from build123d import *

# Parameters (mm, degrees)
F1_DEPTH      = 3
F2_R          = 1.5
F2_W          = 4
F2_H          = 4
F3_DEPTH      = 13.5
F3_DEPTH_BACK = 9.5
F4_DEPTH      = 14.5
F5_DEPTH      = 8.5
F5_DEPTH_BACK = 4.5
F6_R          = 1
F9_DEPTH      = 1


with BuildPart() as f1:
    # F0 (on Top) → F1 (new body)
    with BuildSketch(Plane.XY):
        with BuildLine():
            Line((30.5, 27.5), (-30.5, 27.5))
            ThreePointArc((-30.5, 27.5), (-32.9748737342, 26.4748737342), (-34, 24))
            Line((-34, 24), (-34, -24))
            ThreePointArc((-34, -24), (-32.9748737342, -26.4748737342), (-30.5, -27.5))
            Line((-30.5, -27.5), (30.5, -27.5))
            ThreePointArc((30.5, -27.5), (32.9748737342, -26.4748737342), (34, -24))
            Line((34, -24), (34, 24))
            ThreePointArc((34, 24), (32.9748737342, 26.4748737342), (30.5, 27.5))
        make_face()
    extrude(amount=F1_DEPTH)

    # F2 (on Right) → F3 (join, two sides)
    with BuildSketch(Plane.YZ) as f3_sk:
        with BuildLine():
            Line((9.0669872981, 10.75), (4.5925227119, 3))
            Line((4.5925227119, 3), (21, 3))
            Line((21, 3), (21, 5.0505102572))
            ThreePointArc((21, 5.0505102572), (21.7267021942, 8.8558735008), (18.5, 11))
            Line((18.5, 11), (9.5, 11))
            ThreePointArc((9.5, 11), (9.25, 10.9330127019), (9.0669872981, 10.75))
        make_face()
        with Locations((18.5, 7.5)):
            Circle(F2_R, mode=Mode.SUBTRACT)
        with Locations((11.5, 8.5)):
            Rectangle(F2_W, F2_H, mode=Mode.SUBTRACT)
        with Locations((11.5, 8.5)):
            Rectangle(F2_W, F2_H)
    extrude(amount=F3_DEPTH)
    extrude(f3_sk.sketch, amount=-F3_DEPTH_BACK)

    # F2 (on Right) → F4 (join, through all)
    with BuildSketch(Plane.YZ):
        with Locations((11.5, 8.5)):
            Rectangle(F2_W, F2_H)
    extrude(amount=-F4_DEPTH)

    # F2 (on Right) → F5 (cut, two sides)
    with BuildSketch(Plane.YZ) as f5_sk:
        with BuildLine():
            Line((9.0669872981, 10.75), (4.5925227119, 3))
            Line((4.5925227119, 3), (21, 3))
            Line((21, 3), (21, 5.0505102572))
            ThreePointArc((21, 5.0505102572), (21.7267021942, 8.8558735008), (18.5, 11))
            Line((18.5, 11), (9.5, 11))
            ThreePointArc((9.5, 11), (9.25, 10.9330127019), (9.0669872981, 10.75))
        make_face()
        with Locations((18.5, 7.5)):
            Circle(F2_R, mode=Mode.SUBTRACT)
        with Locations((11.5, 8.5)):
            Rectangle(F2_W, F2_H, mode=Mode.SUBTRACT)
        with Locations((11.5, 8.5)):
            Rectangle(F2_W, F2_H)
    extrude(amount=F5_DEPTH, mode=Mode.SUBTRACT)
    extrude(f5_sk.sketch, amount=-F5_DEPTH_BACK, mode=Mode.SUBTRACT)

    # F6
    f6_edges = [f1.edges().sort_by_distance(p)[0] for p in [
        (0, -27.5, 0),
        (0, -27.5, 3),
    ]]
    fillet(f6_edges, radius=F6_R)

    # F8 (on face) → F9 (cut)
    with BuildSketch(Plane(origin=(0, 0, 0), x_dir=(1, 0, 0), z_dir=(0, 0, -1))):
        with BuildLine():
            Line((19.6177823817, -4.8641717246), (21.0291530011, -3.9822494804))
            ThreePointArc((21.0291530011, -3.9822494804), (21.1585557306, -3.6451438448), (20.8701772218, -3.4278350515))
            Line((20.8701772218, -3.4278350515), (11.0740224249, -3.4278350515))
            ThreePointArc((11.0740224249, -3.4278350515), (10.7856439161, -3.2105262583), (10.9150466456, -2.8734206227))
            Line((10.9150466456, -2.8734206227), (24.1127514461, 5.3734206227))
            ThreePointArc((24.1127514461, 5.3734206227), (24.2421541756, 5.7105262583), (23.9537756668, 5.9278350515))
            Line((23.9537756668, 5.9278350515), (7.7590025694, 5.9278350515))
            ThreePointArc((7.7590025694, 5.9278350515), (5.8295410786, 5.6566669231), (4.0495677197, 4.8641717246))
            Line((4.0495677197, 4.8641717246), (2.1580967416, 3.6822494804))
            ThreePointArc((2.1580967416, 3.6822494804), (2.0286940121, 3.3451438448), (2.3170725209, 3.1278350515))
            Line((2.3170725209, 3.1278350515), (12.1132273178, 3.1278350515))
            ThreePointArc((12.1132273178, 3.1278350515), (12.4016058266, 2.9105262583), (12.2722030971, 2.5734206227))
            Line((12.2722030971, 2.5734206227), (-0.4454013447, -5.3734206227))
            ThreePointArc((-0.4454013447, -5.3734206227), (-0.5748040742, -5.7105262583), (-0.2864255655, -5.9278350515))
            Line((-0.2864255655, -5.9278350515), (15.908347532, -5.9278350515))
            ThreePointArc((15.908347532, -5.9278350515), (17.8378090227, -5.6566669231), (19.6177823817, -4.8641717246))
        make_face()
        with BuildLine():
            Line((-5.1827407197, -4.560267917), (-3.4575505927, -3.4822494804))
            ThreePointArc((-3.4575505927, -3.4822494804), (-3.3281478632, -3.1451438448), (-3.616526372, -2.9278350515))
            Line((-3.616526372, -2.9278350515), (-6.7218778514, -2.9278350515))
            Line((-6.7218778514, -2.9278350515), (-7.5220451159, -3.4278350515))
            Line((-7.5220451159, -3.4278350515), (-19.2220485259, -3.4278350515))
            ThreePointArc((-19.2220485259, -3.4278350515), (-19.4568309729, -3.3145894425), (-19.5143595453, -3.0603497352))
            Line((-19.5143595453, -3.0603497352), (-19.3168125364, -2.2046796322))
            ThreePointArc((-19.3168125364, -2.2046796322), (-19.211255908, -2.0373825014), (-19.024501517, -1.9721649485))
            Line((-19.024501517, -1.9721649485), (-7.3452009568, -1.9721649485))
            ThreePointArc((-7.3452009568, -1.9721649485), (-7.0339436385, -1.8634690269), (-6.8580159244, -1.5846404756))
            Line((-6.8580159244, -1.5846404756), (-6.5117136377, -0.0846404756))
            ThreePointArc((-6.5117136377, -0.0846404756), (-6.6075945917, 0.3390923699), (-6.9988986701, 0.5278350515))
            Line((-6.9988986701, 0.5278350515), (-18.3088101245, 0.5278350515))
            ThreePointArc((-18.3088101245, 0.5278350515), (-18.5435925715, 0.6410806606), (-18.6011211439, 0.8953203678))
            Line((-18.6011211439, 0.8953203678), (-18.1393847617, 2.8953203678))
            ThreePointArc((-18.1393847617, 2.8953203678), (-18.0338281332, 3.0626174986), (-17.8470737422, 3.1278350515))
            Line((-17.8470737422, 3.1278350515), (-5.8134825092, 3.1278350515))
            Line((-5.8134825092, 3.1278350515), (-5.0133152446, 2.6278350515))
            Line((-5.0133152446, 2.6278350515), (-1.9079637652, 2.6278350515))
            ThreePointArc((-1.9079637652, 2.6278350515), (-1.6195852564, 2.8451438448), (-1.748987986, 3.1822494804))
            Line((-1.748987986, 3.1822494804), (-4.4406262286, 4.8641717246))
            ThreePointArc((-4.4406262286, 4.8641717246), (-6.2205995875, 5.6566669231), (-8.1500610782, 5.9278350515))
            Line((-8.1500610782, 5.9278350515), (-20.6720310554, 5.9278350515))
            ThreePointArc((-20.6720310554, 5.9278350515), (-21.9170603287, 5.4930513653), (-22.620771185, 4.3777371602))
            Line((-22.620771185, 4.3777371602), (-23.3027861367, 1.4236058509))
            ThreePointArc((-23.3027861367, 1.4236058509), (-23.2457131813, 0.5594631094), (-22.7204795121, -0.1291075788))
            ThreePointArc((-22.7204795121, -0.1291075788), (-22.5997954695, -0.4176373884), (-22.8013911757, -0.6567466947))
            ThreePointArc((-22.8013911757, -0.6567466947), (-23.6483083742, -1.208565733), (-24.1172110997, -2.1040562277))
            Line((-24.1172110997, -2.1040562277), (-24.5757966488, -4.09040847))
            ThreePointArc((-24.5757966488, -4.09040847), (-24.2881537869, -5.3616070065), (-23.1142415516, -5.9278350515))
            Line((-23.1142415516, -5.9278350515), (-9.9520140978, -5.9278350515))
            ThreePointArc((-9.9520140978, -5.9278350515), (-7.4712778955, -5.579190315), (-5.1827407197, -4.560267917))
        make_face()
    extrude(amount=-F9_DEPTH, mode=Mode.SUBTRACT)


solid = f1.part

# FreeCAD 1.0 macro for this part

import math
import FreeCAD as App
import Part
import Sketcher

V = App.Vector
Q = App.Units.Quantity


def edges_at(feature, points):
    """Names of the edges that pass closest to the given points."""
    edges = feature.Shape.Edges
    near = lambda p: min(range(len(edges)), key=lambda i: edges[i].distToShape(Part.Vertex(*p))[0])
    return sorted({f"Edge{near(p) + 1}" for p in points})


def add_polygon(sketch, points):
    """Adds a closed chain of lines whose ends are joined by coincident constraints."""
    first, n = sketch.GeometryCount, len(points)
    for a, b in zip(points, points[1:] + points[:1]):
        sketch.addGeometry(Part.LineSegment(App.Vector(*a, 0), App.Vector(*b, 0)), False)
    for i in range(n):
        sketch.addConstraint(Sketcher.Constraint("Coincident", first + i, 2, first + (i + 1) % n, 1))

doc = App.newDocument("Part")
body = doc.addObject("PartDesign::Body", "Body")

# Sketch on XY plane
sketch1 = body.newObject("Sketcher::SketchObject", "Sketch")
sketch1.AttachmentSupport = (doc.getObject("XY_Plane"), [""])
sketch1.MapMode = "FlatFace"
sketch1.addGeometry(Part.LineSegment(V(30.5, 27.5, 0), V(-30.5, 27.5, 0)), False)
sketch1.addGeometry(Part.ArcOfCircle(Part.Circle(V(-30.5, 24, 0), V(0, 0, 1), 3.5), math.radians(90), math.radians(180)), False)
sketch1.addGeometry(Part.LineSegment(V(-34, 24, 0), V(-34, -24, 0)), False)
sketch1.addGeometry(Part.ArcOfCircle(Part.Circle(V(-30.5, -24, 0), V(0, 0, 1), 3.5), math.radians(180), math.radians(270)), False)
sketch1.addGeometry(Part.LineSegment(V(-30.5, -27.5, 0), V(30.5, -27.5, 0)), False)
sketch1.addGeometry(Part.ArcOfCircle(Part.Circle(V(30.5, -24, 0), V(0, 0, 1), 3.5), math.radians(-90), math.radians(0)), False)
sketch1.addGeometry(Part.LineSegment(V(34, -24, 0), V(34, 24, 0)), False)
sketch1.addGeometry(Part.ArcOfCircle(Part.Circle(V(30.5, 24, 0), V(0, 0, 1), 3.5), math.radians(0), math.radians(90)), False)
sketch1.addConstraint(Sketcher.Constraint("Tangent", 0, 2, 1, 1))
sketch1.addConstraint(Sketcher.Constraint("Tangent", 1, 2, 2, 1))
sketch1.addConstraint(Sketcher.Constraint("Tangent", 2, 2, 3, 1))
sketch1.addConstraint(Sketcher.Constraint("Tangent", 3, 2, 4, 1))
sketch1.addConstraint(Sketcher.Constraint("Tangent", 4, 2, 5, 1))
sketch1.addConstraint(Sketcher.Constraint("Tangent", 5, 2, 6, 1))
sketch1.addConstraint(Sketcher.Constraint("Tangent", 6, 2, 7, 1))
sketch1.addConstraint(Sketcher.Constraint("Tangent", 7, 2, 0, 1))
sketch1.addConstraint(Sketcher.Constraint("Horizontal", 0))
sketch1.addConstraint(Sketcher.Constraint("Vertical", 2))
sketch1.addConstraint(Sketcher.Constraint("Horizontal", 4))
sketch1.addConstraint(Sketcher.Constraint("Vertical", 6))
sketch1.addConstraint(Sketcher.Constraint("Equal", 1, 3))
sketch1.addConstraint(Sketcher.Constraint("Equal", 3, 5))
sketch1.addConstraint(Sketcher.Constraint("Equal", 5, 7))
sketch1.addConstraint(Sketcher.Constraint("Symmetric", 1, 3, 5, 3, -1, 1))
sketch1.addConstraint(Sketcher.Constraint("Radius", 1, 3.5))
sketch1.addConstraint(Sketcher.Constraint("DistanceX", 0, 2, 0, 1, 61.0))
sketch1.addConstraint(Sketcher.Constraint("DistanceY", 2, 2, 2, 1, 48.0))
pad1 = body.newObject("PartDesign::Pad", "Pad")
pad1.Profile = sketch1
pad1.Length = 3

# Sketch on YZ plane
sketch2 = body.newObject("Sketcher::SketchObject", "Sketch001")
sketch2.AttachmentSupport = (doc.getObject("YZ_Plane"), [""])
sketch2.MapMode = "FlatFace"
sketch2.addGeometry(Part.LineSegment(V(9.066987, 10.75, 0), V(4.592523, 3, 0)), False)
sketch2.addGeometry(Part.LineSegment(V(4.592523, 3, 0), V(21, 3, 0)), False)
sketch2.addGeometry(Part.LineSegment(V(21, 3, 0), V(21, 5.05051, 0)), False)
sketch2.addGeometry(Part.ArcOfCircle(Part.Circle(V(18.5, 7.5, 0), V(0, 0, 1), 3.5), math.radians(-44.415309), math.radians(90)), False)
sketch2.addGeometry(Part.LineSegment(V(18.5, 11, 0), V(9.5, 11, 0)), False)
sketch2.addGeometry(Part.ArcOfCircle(Part.Circle(V(9.5, 10.5, 0), V(0, 0, 1), 0.5), math.radians(90), math.radians(150)), False)
sketch2.addGeometry(Part.Circle(V(18.5, 7.5, 0), V(0, 0, 1), 1.5), False)
sketch2.addConstraint(Sketcher.Constraint("Coincident", 0, 2, 1, 1))
sketch2.addConstraint(Sketcher.Constraint("Coincident", 1, 2, 2, 1))
sketch2.addConstraint(Sketcher.Constraint("Coincident", 2, 2, 3, 1))
sketch2.addConstraint(Sketcher.Constraint("Tangent", 3, 2, 4, 1))
sketch2.addConstraint(Sketcher.Constraint("Tangent", 4, 2, 5, 1))
sketch2.addConstraint(Sketcher.Constraint("Tangent", 5, 2, 0, 1))
sketch2.addConstraint(Sketcher.Constraint("Horizontal", 1))
sketch2.addConstraint(Sketcher.Constraint("Vertical", 2))
sketch2.addConstraint(Sketcher.Constraint("Horizontal", 4))
sketch2.addConstraint(Sketcher.Constraint("Coincident", 6, 3, 3, 3))
sketch2.addConstraint(Sketcher.Constraint("Diameter", 6, 3.0))
sketch2.addConstraint(Sketcher.Constraint("Radius", 3, 3.5))
sketch2.addConstraint(Sketcher.Constraint("Radius", 5, 0.5))
sketch2.addConstraint(Sketcher.Constraint("DistanceX", 4, 2, 4, 1, 9.0))
sketch2.addConstraint(Sketcher.Constraint("Angle", 0, Q("-120 deg")))
sketch2.addConstraint(Sketcher.Constraint("DistanceY", -1, 1, 0, 2, 3.0))
sketch2.addConstraint(Sketcher.Constraint("DistanceX", -1, 1, 1, 2, 21.0))
sketch2.addConstraint(Sketcher.Constraint("DistanceY", -1, 1, 3, 2, 11.0))
sketch2.addConstraint(Sketcher.Constraint("DistanceX", -1, 1, 3, 3, 18.5))
pad2 = body.newObject("PartDesign::Pad", "Pad001")
pad2.Profile = sketch2
pad2.Type = "TwoLengths"
pad2.Length = 13.5
pad2.Length2 = 9.5

# Sketch on YZ plane
sketch3 = body.newObject("Sketcher::SketchObject", "Sketch002")
sketch3.AttachmentSupport = (doc.getObject("YZ_Plane"), [""])
sketch3.MapMode = "FlatFace"
add_polygon(sketch3, [(9.5, 10.5), (9.5, 6.5), (13.5, 6.5), (13.5, 10.5)])  # lines 0-3
sketch3.addConstraint(Sketcher.Constraint("Vertical", 0))
sketch3.addConstraint(Sketcher.Constraint("Horizontal", 1))
sketch3.addConstraint(Sketcher.Constraint("Vertical", 2))
sketch3.addConstraint(Sketcher.Constraint("Horizontal", 3))
sketch3.addConstraint(Sketcher.Constraint("Equal", 3, 0))
sketch3.addConstraint(Sketcher.Constraint("DistanceX", 1, 1, 1, 2, 4.0))
sketch3.addConstraint(Sketcher.Constraint("DistanceX", -1, 1, 0, 2, 9.5))
sketch3.addConstraint(Sketcher.Constraint("DistanceY", -1, 1, 0, 2, 6.5))
pad3 = body.newObject("PartDesign::Pad", "Pad002")
pad3.Profile = sketch3
pad3.Length = 14.5
pad3.Reversed = True

# Sketch on YZ plane
sketch4 = body.newObject("Sketcher::SketchObject", "Sketch003")
sketch4.AttachmentSupport = (doc.getObject("YZ_Plane"), [""])
sketch4.MapMode = "FlatFace"
sketch4.addGeometry(Part.LineSegment(V(9.066987, 10.75, 0), V(4.592523, 3, 0)), False)
sketch4.addGeometry(Part.LineSegment(V(4.592523, 3, 0), V(21, 3, 0)), False)
sketch4.addGeometry(Part.LineSegment(V(21, 3, 0), V(21, 5.05051, 0)), False)
sketch4.addGeometry(Part.ArcOfCircle(Part.Circle(V(18.5, 7.5, 0), V(0, 0, 1), 3.5), math.radians(-44.415309), math.radians(90)), False)
sketch4.addGeometry(Part.LineSegment(V(18.5, 11, 0), V(9.5, 11, 0)), False)
sketch4.addGeometry(Part.ArcOfCircle(Part.Circle(V(9.5, 10.5, 0), V(0, 0, 1), 0.5), math.radians(90), math.radians(150)), False)
sketch4.addGeometry(Part.Circle(V(18.5, 7.5, 0), V(0, 0, 1), 1.5), False)
sketch4.addConstraint(Sketcher.Constraint("Coincident", 0, 2, 1, 1))
sketch4.addConstraint(Sketcher.Constraint("Coincident", 1, 2, 2, 1))
sketch4.addConstraint(Sketcher.Constraint("Coincident", 2, 2, 3, 1))
sketch4.addConstraint(Sketcher.Constraint("Tangent", 3, 2, 4, 1))
sketch4.addConstraint(Sketcher.Constraint("Tangent", 4, 2, 5, 1))
sketch4.addConstraint(Sketcher.Constraint("Tangent", 5, 2, 0, 1))
sketch4.addConstraint(Sketcher.Constraint("Horizontal", 1))
sketch4.addConstraint(Sketcher.Constraint("Vertical", 2))
sketch4.addConstraint(Sketcher.Constraint("Horizontal", 4))
sketch4.addConstraint(Sketcher.Constraint("Coincident", 6, 3, 3, 3))
sketch4.addConstraint(Sketcher.Constraint("Diameter", 6, 3.0))
sketch4.addConstraint(Sketcher.Constraint("Radius", 3, 3.5))
sketch4.addConstraint(Sketcher.Constraint("Radius", 5, 0.5))
sketch4.addConstraint(Sketcher.Constraint("DistanceX", 4, 2, 4, 1, 9.0))
sketch4.addConstraint(Sketcher.Constraint("Angle", 0, Q("-120 deg")))
sketch4.addConstraint(Sketcher.Constraint("DistanceY", -1, 1, 0, 2, 3.0))
sketch4.addConstraint(Sketcher.Constraint("DistanceX", -1, 1, 1, 2, 21.0))
sketch4.addConstraint(Sketcher.Constraint("DistanceY", -1, 1, 3, 2, 11.0))
sketch4.addConstraint(Sketcher.Constraint("DistanceX", -1, 1, 3, 3, 18.5))
pocket1 = body.newObject("PartDesign::Pocket", "Pocket")
pocket1.Profile = sketch4
pocket1.Type = "TwoLengths"
pocket1.Length = 8.5
pocket1.Length2 = 4.5
pocket1.Reversed = True
doc.recompute()

fillet = body.newObject("PartDesign::Fillet", "Fillet")
fillet.Base = (pocket1, edges_at(pocket1, [(0, -27.5, 0), (0, -27.5, 3)]))
fillet.Radius = 1

# Sketch on XY plane
sketch5 = body.newObject("Sketcher::SketchObject", "Sketch004")
sketch5.AttachmentSupport = (doc.getObject("XY_Plane"), [""])
sketch5.MapMode = "FlatFace"
sketch5.addGeometry(Part.LineSegment(V(19.617782, 4.864172, 0), V(21.029153, 3.982249, 0)), False)
sketch5.addGeometry(Part.ArcOfCircle(Part.Circle(V(20.870177, 3.727835, 0), V(0, 0, 1), 0.3), math.radians(-90), math.radians(58)), False)
sketch5.addGeometry(Part.LineSegment(V(20.870177, 3.427835, 0), V(11.074022, 3.427835, 0)), False)
sketch5.addGeometry(Part.ArcOfCircle(Part.Circle(V(11.074022, 3.127835, 0), V(0, 0, 1), 0.3), math.radians(90), math.radians(238)), False)
sketch5.addGeometry(Part.LineSegment(V(10.915047, 2.873421, 0), V(24.112751, -5.373421, 0)), False)
sketch5.addGeometry(Part.ArcOfCircle(Part.Circle(V(23.953776, -5.627835, 0), V(0, 0, 1), 0.3), math.radians(-90), math.radians(58)), False)
sketch5.addGeometry(Part.LineSegment(V(23.953776, -5.927835, 0), V(7.759003, -5.927835, 0)), False)
sketch5.addGeometry(Part.ArcOfCircle(Part.Circle(V(7.759003, 1.072165, 0), V(0, 0, 1), 7), math.radians(-122), math.radians(-90)), False)
sketch5.addGeometry(Part.LineSegment(V(4.049568, -4.864172, 0), V(2.158097, -3.682249, 0)), False)
sketch5.addGeometry(Part.ArcOfCircle(Part.Circle(V(2.317073, -3.427835, 0), V(0, 0, 1), 0.3), math.radians(90), math.radians(238)), False)
sketch5.addGeometry(Part.LineSegment(V(2.317073, -3.127835, 0), V(12.113227, -3.127835, 0)), False)
sketch5.addGeometry(Part.ArcOfCircle(Part.Circle(V(12.113227, -2.827835, 0), V(0, 0, 1), 0.3), math.radians(-90), math.radians(58)), False)
sketch5.addGeometry(Part.LineSegment(V(12.272203, -2.573421, 0), V(-0.445401, 5.373421, 0)), False)
sketch5.addGeometry(Part.ArcOfCircle(Part.Circle(V(-0.286426, 5.627835, 0), V(0, 0, 1), 0.3), math.radians(90), math.radians(238)), False)
sketch5.addGeometry(Part.LineSegment(V(-0.286426, 5.927835, 0), V(15.908348, 5.927835, 0)), False)
sketch5.addGeometry(Part.ArcOfCircle(Part.Circle(V(15.908348, -1.072165, 0), V(0, 0, 1), 7), math.radians(58), math.radians(90)), False)
sketch5.addGeometry(Part.LineSegment(V(-5.182741, 4.560268, 0), V(-3.457551, 3.482249, 0)), False)
sketch5.addGeometry(Part.ArcOfCircle(Part.Circle(V(-3.616526, 3.227835, 0), V(0, 0, 1), 0.3), math.radians(-90), math.radians(58)), False)
sketch5.addGeometry(Part.LineSegment(V(-3.616526, 2.927835, 0), V(-6.721878, 2.927835, 0)), False)
sketch5.addGeometry(Part.LineSegment(V(-6.721878, 2.927835, 0), V(-7.522045, 3.427835, 0)), False)
sketch5.addGeometry(Part.LineSegment(V(-7.522045, 3.427835, 0), V(-19.222049, 3.427835, 0)), False)
sketch5.addGeometry(Part.ArcOfCircle(Part.Circle(V(-19.222049, 3.127835, 0), V(0, 0, 1), 0.3), math.radians(90), math.radians(193)), False)
sketch5.addGeometry(Part.LineSegment(V(-19.51436, 3.06035, 0), V(-19.316813, 2.20468, 0)), False)
sketch5.addGeometry(Part.ArcOfCircle(Part.Circle(V(-19.024502, 2.272165, 0), V(0, 0, 1), 0.3), math.radians(-167), math.radians(-90)), False)
sketch5.addGeometry(Part.LineSegment(V(-19.024502, 1.972165, 0), V(-7.345201, 1.972165, 0)), False)
sketch5.addGeometry(Part.ArcOfCircle(Part.Circle(V(-7.345201, 1.472165, 0), V(0, 0, 1), 0.5), math.radians(13), math.radians(90)), False)
sketch5.addGeometry(Part.LineSegment(V(-6.858016, 1.58464, 0), V(-6.511714, 0.08464, 0)), False)
sketch5.addGeometry(Part.ArcOfCircle(Part.Circle(V(-6.998899, -0.027835, 0), V(0, 0, 1), 0.5), math.radians(-90), math.radians(13)), False)
sketch5.addGeometry(Part.LineSegment(V(-6.998899, -0.527835, 0), V(-18.30881, -0.527835, 0)), False)
sketch5.addGeometry(Part.ArcOfCircle(Part.Circle(V(-18.30881, -0.827835, 0), V(0, 0, 1), 0.3), math.radians(90), math.radians(193)), False)
sketch5.addGeometry(Part.LineSegment(V(-18.601121, -0.89532, 0), V(-18.139385, -2.89532, 0)), False)
sketch5.addGeometry(Part.ArcOfCircle(Part.Circle(V(-17.847074, -2.827835, 0), V(0, 0, 1), 0.3), math.radians(-167), math.radians(-90)), False)
sketch5.addGeometry(Part.LineSegment(V(-17.847074, -3.127835, 0), V(-5.813483, -3.127835, 0)), False)
sketch5.addGeometry(Part.LineSegment(V(-5.813483, -3.127835, 0), V(-5.013315, -2.627835, 0)), False)
sketch5.addGeometry(Part.LineSegment(V(-5.013315, -2.627835, 0), V(-1.907964, -2.627835, 0)), False)
sketch5.addGeometry(Part.ArcOfCircle(Part.Circle(V(-1.907964, -2.927835, 0), V(0, 0, 1), 0.3), math.radians(-58), math.radians(90)), False)
sketch5.addGeometry(Part.LineSegment(V(-1.748988, -3.182249, 0), V(-4.440626, -4.864172, 0)), False)
sketch5.addGeometry(Part.ArcOfCircle(Part.Circle(V(-8.150061, 1.072165, 0), V(0, 0, 1), 7), math.radians(-90), math.radians(-58)), False)
sketch5.addGeometry(Part.LineSegment(V(-8.150061, -5.927835, 0), V(-20.672031, -5.927835, 0)), False)
sketch5.addGeometry(Part.ArcOfCircle(Part.Circle(V(-20.672031, -3.927835, 0), V(0, 0, 1), 2), math.radians(-167), math.radians(-90)), False)
sketch5.addGeometry(Part.LineSegment(V(-22.620771, -4.377737, 0), V(-23.302786, -1.423606, 0)), False)
sketch5.addGeometry(Part.ArcOfCircle(Part.Circle(V(-21.841231, -1.086179, 0), V(0, 0, 1), 1.5), math.radians(125.88538), math.radians(193)), False)
sketch5.addGeometry(Part.ArcOfCircle(Part.Circle(V(-22.896329, 0.372165, 0), V(0, 0, 1), 0.3), math.radians(-54.114619), math.radians(71.551019)), False)
sketch5.addGeometry(Part.ArcOfCircle(Part.Circle(V(-22.168471, 2.553958, 0), V(0, 0, 1), 2), math.radians(-167), math.radians(-108.448981)), False)
sketch5.addGeometry(Part.LineSegment(V(-24.117211, 2.104056, 0), V(-24.575797, 4.090408, 0)), False)
sketch5.addGeometry(Part.ArcOfCircle(Part.Circle(V(-23.114242, 4.427835, 0), V(0, 0, 1), 1.5), math.radians(90), math.radians(193)), False)
sketch5.addGeometry(Part.LineSegment(V(-23.114242, 5.927835, 0), V(-9.952014, 5.927835, 0)), False)
sketch5.addGeometry(Part.ArcOfCircle(Part.Circle(V(-9.952014, -3.072165, 0), V(0, 0, 1), 9), math.radians(58), math.radians(90)), False)
sketch5.addConstraint(Sketcher.Constraint("Tangent", 0, 2, 1, 2))
sketch5.addConstraint(Sketcher.Constraint("Tangent", 1, 1, 2, 1))
sketch5.addConstraint(Sketcher.Constraint("Tangent", 2, 2, 3, 1))
sketch5.addConstraint(Sketcher.Constraint("Tangent", 3, 2, 4, 1))
sketch5.addConstraint(Sketcher.Constraint("Tangent", 4, 2, 5, 2))
sketch5.addConstraint(Sketcher.Constraint("Tangent", 5, 1, 6, 1))
sketch5.addConstraint(Sketcher.Constraint("Tangent", 6, 2, 7, 2))
sketch5.addConstraint(Sketcher.Constraint("Tangent", 7, 1, 8, 1))
sketch5.addConstraint(Sketcher.Constraint("Tangent", 8, 2, 9, 2))
sketch5.addConstraint(Sketcher.Constraint("Tangent", 9, 1, 10, 1))
sketch5.addConstraint(Sketcher.Constraint("Tangent", 10, 2, 11, 1))
sketch5.addConstraint(Sketcher.Constraint("Tangent", 11, 2, 12, 1))
sketch5.addConstraint(Sketcher.Constraint("Tangent", 12, 2, 13, 2))
sketch5.addConstraint(Sketcher.Constraint("Tangent", 13, 1, 14, 1))
sketch5.addConstraint(Sketcher.Constraint("Tangent", 14, 2, 15, 2))
sketch5.addConstraint(Sketcher.Constraint("Tangent", 15, 1, 0, 1))
sketch5.addConstraint(Sketcher.Constraint("Tangent", 16, 2, 17, 2))
sketch5.addConstraint(Sketcher.Constraint("Tangent", 17, 1, 18, 1))
sketch5.addConstraint(Sketcher.Constraint("Coincident", 18, 2, 19, 1))
sketch5.addConstraint(Sketcher.Constraint("Coincident", 19, 2, 20, 1))
sketch5.addConstraint(Sketcher.Constraint("Tangent", 20, 2, 21, 1))
sketch5.addConstraint(Sketcher.Constraint("Tangent", 21, 2, 22, 1))
sketch5.addConstraint(Sketcher.Constraint("Tangent", 22, 2, 23, 1))
sketch5.addConstraint(Sketcher.Constraint("Tangent", 23, 2, 24, 1))
sketch5.addConstraint(Sketcher.Constraint("Tangent", 24, 2, 25, 2))
sketch5.addConstraint(Sketcher.Constraint("Tangent", 25, 1, 26, 1))
sketch5.addConstraint(Sketcher.Constraint("Tangent", 26, 2, 27, 2))
sketch5.addConstraint(Sketcher.Constraint("Tangent", 27, 1, 28, 1))
sketch5.addConstraint(Sketcher.Constraint("Tangent", 28, 2, 29, 1))
sketch5.addConstraint(Sketcher.Constraint("Tangent", 29, 2, 30, 1))
sketch5.addConstraint(Sketcher.Constraint("Tangent", 30, 2, 31, 1))
sketch5.addConstraint(Sketcher.Constraint("Tangent", 31, 2, 32, 1))
sketch5.addConstraint(Sketcher.Constraint("Coincident", 32, 2, 33, 1))
sketch5.addConstraint(Sketcher.Constraint("Coincident", 33, 2, 34, 1))
sketch5.addConstraint(Sketcher.Constraint("Tangent", 34, 2, 35, 2))
sketch5.addConstraint(Sketcher.Constraint("Tangent", 35, 1, 36, 1))
sketch5.addConstraint(Sketcher.Constraint("Tangent", 36, 2, 37, 2))
sketch5.addConstraint(Sketcher.Constraint("Tangent", 37, 1, 38, 1))
sketch5.addConstraint(Sketcher.Constraint("Tangent", 38, 2, 39, 2))
sketch5.addConstraint(Sketcher.Constraint("Tangent", 39, 1, 40, 1))
sketch5.addConstraint(Sketcher.Constraint("Tangent", 40, 2, 41, 2))
sketch5.addConstraint(Sketcher.Constraint("Tangent", 41, 1, 42, 1))
sketch5.addConstraint(Sketcher.Constraint("Tangent", 42, 2, 43, 2))
sketch5.addConstraint(Sketcher.Constraint("Tangent", 43, 1, 44, 1))
sketch5.addConstraint(Sketcher.Constraint("Tangent", 44, 2, 45, 2))
sketch5.addConstraint(Sketcher.Constraint("Tangent", 45, 1, 46, 1))
sketch5.addConstraint(Sketcher.Constraint("Tangent", 46, 2, 47, 2))
sketch5.addConstraint(Sketcher.Constraint("Tangent", 47, 1, 16, 1))
sketch5.addConstraint(Sketcher.Constraint("Horizontal", 2))
sketch5.addConstraint(Sketcher.Constraint("Horizontal", 6))
sketch5.addConstraint(Sketcher.Constraint("Horizontal", 10))
sketch5.addConstraint(Sketcher.Constraint("Horizontal", 14))
sketch5.addConstraint(Sketcher.Constraint("Horizontal", 18))
sketch5.addConstraint(Sketcher.Constraint("Horizontal", 20))
sketch5.addConstraint(Sketcher.Constraint("Horizontal", 24))
sketch5.addConstraint(Sketcher.Constraint("Horizontal", 28))
sketch5.addConstraint(Sketcher.Constraint("Horizontal", 32))
sketch5.addConstraint(Sketcher.Constraint("Horizontal", 34))
sketch5.addConstraint(Sketcher.Constraint("Horizontal", 38))
sketch5.addConstraint(Sketcher.Constraint("Horizontal", 46))
sketch5.addConstraint(Sketcher.Constraint("Equal", 1, 3))
sketch5.addConstraint(Sketcher.Constraint("Equal", 3, 5))
sketch5.addConstraint(Sketcher.Constraint("Equal", 5, 9))
sketch5.addConstraint(Sketcher.Constraint("Equal", 9, 11))
sketch5.addConstraint(Sketcher.Constraint("Equal", 11, 13))
sketch5.addConstraint(Sketcher.Constraint("Equal", 7, 15))
sketch5.addConstraint(Sketcher.Constraint("Equal", 13, 17))
sketch5.addConstraint(Sketcher.Constraint("Equal", 17, 21))
sketch5.addConstraint(Sketcher.Constraint("Equal", 21, 23))
sketch5.addConstraint(Sketcher.Constraint("Equal", 25, 27))
sketch5.addConstraint(Sketcher.Constraint("Equal", 23, 29))
sketch5.addConstraint(Sketcher.Constraint("Equal", 29, 31))
sketch5.addConstraint(Sketcher.Constraint("Equal", 31, 35))
sketch5.addConstraint(Sketcher.Constraint("Equal", 15, 37))
sketch5.addConstraint(Sketcher.Constraint("Equal", 35, 42))
sketch5.addConstraint(Sketcher.Constraint("Equal", 39, 43))
sketch5.addConstraint(Sketcher.Constraint("Equal", 41, 45))
sketch5.addConstraint(Sketcher.Constraint("Parallel", 0, 4))
sketch5.addConstraint(Sketcher.Constraint("Parallel", 4, 8))
sketch5.addConstraint(Sketcher.Constraint("Parallel", 8, 12))
sketch5.addConstraint(Sketcher.Constraint("Parallel", 12, 16))
sketch5.addConstraint(Sketcher.Constraint("Parallel", 16, 19))
sketch5.addConstraint(Sketcher.Constraint("Parallel", 22, 26))
sketch5.addConstraint(Sketcher.Constraint("Parallel", 26, 30))
sketch5.addConstraint(Sketcher.Constraint("Parallel", 33, 36))
sketch5.addConstraint(Sketcher.Constraint("Parallel", 30, 40))
sketch5.addConstraint(Sketcher.Constraint("Parallel", 40, 44))
sketch5.addConstraint(Sketcher.Constraint("Horizontal", 3, 3, 21, 3))
sketch5.addConstraint(Sketcher.Constraint("Horizontal", 11, 3, 31, 3))
sketch5.addConstraint(Sketcher.Constraint("Horizontal", 7, 3, 37, 3))
sketch5.addConstraint(Sketcher.Constraint("Horizontal", 7, 1, 36, 2))
sketch5.addConstraint(Sketcher.Constraint("Horizontal", 14, 2, 45, 1))
sketch5.addConstraint(Sketcher.Constraint("Equal", 2, 10))
sketch5.addConstraint(Sketcher.Constraint("Equal", 18, 34))
sketch5.addConstraint(Sketcher.Constraint("Equal", 19, 33))
sketch5.addConstraint(Sketcher.Constraint("Radius", 7, 7.0))
sketch5.addConstraint(Sketcher.Constraint("Radius", 39, 2.0))
sketch5.addConstraint(Sketcher.Constraint("Radius", 47, 9.0))
sketch5.addConstraint(Sketcher.Constraint("Radius", 1, 0.3))
sketch5.addConstraint(Sketcher.Constraint("Radius", 25, 0.5))
sketch5.addConstraint(Sketcher.Constraint("Radius", 41, 1.5))
sketch5.addConstraint(Sketcher.Constraint("Angle", 0, Q("-32 deg")))
sketch5.addConstraint(Sketcher.Constraint("Angle", 22, Q("-77 deg")))
sketch5.addConstraint(Sketcher.Constraint("DistanceX", 24, 1, 24, 2, 11.679301))
sketch5.addConstraint(Sketcher.Constraint("Distance", 44, 2.038601))
sketch5.addConstraint(Sketcher.Constraint("DistanceX", 18, 2, 18, 1, 3.105351))
sketch5.addConstraint(Sketcher.Constraint("DistanceX", 28, 2, 28, 1, 11.309911))
sketch5.addConstraint(Sketcher.Constraint("DistanceX", 32, 1, 32, 2, 12.033591))
sketch5.addConstraint(Sketcher.Constraint("DistanceX", 38, 2, 38, 1, 12.52197))
sketch5.addConstraint(Sketcher.Constraint("DistanceX", 23, 3, -1, 1, 19.024502))
sketch5.addConstraint(Sketcher.Constraint("DistanceX", 27, 3, -1, 1, 6.998899))
sketch5.addConstraint(Sketcher.Constraint("DistanceX", 12, 2, -1, 1, 0.445401))
sketch5.addConstraint(Sketcher.Constraint("Distance", 4, 15.562448))
sketch5.addConstraint(Sketcher.Constraint("Distance", 8, 2.230382))
sketch5.addConstraint(Sketcher.Constraint("Distance", 19, 0.94354))
sketch5.addConstraint(Sketcher.Constraint("Distance", 30, 2.052608))
sketch5.addConstraint(Sketcher.Constraint("DistanceX", 2, 2, 2, 1, 9.796155))
sketch5.addConstraint(Sketcher.Constraint("DistanceX", 6, 2, 6, 1, 16.194773))
sketch5.addConstraint(Sketcher.Constraint("DistanceX", 20, 2, 20, 1, 11.700003))
sketch5.addConstraint(Sketcher.Constraint("DistanceX", 46, 1, 46, 2, 13.162227))
sketch5.addConstraint(Sketcher.Constraint("DistanceX", 41, 3, -1, 1, 21.841231))
sketch5.addConstraint(Sketcher.Constraint("DistanceY", 41, 3, -1, 1, 1.086179))
sketch5.addConstraint(Sketcher.Constraint("DistanceX", 42, 3, -1, 1, 22.896329))
pocket2 = body.newObject("PartDesign::Pocket", "Pocket001")
pocket2.Profile = sketch5
pocket2.Length = 1
pocket2.Reversed = True

doc.recompute()
